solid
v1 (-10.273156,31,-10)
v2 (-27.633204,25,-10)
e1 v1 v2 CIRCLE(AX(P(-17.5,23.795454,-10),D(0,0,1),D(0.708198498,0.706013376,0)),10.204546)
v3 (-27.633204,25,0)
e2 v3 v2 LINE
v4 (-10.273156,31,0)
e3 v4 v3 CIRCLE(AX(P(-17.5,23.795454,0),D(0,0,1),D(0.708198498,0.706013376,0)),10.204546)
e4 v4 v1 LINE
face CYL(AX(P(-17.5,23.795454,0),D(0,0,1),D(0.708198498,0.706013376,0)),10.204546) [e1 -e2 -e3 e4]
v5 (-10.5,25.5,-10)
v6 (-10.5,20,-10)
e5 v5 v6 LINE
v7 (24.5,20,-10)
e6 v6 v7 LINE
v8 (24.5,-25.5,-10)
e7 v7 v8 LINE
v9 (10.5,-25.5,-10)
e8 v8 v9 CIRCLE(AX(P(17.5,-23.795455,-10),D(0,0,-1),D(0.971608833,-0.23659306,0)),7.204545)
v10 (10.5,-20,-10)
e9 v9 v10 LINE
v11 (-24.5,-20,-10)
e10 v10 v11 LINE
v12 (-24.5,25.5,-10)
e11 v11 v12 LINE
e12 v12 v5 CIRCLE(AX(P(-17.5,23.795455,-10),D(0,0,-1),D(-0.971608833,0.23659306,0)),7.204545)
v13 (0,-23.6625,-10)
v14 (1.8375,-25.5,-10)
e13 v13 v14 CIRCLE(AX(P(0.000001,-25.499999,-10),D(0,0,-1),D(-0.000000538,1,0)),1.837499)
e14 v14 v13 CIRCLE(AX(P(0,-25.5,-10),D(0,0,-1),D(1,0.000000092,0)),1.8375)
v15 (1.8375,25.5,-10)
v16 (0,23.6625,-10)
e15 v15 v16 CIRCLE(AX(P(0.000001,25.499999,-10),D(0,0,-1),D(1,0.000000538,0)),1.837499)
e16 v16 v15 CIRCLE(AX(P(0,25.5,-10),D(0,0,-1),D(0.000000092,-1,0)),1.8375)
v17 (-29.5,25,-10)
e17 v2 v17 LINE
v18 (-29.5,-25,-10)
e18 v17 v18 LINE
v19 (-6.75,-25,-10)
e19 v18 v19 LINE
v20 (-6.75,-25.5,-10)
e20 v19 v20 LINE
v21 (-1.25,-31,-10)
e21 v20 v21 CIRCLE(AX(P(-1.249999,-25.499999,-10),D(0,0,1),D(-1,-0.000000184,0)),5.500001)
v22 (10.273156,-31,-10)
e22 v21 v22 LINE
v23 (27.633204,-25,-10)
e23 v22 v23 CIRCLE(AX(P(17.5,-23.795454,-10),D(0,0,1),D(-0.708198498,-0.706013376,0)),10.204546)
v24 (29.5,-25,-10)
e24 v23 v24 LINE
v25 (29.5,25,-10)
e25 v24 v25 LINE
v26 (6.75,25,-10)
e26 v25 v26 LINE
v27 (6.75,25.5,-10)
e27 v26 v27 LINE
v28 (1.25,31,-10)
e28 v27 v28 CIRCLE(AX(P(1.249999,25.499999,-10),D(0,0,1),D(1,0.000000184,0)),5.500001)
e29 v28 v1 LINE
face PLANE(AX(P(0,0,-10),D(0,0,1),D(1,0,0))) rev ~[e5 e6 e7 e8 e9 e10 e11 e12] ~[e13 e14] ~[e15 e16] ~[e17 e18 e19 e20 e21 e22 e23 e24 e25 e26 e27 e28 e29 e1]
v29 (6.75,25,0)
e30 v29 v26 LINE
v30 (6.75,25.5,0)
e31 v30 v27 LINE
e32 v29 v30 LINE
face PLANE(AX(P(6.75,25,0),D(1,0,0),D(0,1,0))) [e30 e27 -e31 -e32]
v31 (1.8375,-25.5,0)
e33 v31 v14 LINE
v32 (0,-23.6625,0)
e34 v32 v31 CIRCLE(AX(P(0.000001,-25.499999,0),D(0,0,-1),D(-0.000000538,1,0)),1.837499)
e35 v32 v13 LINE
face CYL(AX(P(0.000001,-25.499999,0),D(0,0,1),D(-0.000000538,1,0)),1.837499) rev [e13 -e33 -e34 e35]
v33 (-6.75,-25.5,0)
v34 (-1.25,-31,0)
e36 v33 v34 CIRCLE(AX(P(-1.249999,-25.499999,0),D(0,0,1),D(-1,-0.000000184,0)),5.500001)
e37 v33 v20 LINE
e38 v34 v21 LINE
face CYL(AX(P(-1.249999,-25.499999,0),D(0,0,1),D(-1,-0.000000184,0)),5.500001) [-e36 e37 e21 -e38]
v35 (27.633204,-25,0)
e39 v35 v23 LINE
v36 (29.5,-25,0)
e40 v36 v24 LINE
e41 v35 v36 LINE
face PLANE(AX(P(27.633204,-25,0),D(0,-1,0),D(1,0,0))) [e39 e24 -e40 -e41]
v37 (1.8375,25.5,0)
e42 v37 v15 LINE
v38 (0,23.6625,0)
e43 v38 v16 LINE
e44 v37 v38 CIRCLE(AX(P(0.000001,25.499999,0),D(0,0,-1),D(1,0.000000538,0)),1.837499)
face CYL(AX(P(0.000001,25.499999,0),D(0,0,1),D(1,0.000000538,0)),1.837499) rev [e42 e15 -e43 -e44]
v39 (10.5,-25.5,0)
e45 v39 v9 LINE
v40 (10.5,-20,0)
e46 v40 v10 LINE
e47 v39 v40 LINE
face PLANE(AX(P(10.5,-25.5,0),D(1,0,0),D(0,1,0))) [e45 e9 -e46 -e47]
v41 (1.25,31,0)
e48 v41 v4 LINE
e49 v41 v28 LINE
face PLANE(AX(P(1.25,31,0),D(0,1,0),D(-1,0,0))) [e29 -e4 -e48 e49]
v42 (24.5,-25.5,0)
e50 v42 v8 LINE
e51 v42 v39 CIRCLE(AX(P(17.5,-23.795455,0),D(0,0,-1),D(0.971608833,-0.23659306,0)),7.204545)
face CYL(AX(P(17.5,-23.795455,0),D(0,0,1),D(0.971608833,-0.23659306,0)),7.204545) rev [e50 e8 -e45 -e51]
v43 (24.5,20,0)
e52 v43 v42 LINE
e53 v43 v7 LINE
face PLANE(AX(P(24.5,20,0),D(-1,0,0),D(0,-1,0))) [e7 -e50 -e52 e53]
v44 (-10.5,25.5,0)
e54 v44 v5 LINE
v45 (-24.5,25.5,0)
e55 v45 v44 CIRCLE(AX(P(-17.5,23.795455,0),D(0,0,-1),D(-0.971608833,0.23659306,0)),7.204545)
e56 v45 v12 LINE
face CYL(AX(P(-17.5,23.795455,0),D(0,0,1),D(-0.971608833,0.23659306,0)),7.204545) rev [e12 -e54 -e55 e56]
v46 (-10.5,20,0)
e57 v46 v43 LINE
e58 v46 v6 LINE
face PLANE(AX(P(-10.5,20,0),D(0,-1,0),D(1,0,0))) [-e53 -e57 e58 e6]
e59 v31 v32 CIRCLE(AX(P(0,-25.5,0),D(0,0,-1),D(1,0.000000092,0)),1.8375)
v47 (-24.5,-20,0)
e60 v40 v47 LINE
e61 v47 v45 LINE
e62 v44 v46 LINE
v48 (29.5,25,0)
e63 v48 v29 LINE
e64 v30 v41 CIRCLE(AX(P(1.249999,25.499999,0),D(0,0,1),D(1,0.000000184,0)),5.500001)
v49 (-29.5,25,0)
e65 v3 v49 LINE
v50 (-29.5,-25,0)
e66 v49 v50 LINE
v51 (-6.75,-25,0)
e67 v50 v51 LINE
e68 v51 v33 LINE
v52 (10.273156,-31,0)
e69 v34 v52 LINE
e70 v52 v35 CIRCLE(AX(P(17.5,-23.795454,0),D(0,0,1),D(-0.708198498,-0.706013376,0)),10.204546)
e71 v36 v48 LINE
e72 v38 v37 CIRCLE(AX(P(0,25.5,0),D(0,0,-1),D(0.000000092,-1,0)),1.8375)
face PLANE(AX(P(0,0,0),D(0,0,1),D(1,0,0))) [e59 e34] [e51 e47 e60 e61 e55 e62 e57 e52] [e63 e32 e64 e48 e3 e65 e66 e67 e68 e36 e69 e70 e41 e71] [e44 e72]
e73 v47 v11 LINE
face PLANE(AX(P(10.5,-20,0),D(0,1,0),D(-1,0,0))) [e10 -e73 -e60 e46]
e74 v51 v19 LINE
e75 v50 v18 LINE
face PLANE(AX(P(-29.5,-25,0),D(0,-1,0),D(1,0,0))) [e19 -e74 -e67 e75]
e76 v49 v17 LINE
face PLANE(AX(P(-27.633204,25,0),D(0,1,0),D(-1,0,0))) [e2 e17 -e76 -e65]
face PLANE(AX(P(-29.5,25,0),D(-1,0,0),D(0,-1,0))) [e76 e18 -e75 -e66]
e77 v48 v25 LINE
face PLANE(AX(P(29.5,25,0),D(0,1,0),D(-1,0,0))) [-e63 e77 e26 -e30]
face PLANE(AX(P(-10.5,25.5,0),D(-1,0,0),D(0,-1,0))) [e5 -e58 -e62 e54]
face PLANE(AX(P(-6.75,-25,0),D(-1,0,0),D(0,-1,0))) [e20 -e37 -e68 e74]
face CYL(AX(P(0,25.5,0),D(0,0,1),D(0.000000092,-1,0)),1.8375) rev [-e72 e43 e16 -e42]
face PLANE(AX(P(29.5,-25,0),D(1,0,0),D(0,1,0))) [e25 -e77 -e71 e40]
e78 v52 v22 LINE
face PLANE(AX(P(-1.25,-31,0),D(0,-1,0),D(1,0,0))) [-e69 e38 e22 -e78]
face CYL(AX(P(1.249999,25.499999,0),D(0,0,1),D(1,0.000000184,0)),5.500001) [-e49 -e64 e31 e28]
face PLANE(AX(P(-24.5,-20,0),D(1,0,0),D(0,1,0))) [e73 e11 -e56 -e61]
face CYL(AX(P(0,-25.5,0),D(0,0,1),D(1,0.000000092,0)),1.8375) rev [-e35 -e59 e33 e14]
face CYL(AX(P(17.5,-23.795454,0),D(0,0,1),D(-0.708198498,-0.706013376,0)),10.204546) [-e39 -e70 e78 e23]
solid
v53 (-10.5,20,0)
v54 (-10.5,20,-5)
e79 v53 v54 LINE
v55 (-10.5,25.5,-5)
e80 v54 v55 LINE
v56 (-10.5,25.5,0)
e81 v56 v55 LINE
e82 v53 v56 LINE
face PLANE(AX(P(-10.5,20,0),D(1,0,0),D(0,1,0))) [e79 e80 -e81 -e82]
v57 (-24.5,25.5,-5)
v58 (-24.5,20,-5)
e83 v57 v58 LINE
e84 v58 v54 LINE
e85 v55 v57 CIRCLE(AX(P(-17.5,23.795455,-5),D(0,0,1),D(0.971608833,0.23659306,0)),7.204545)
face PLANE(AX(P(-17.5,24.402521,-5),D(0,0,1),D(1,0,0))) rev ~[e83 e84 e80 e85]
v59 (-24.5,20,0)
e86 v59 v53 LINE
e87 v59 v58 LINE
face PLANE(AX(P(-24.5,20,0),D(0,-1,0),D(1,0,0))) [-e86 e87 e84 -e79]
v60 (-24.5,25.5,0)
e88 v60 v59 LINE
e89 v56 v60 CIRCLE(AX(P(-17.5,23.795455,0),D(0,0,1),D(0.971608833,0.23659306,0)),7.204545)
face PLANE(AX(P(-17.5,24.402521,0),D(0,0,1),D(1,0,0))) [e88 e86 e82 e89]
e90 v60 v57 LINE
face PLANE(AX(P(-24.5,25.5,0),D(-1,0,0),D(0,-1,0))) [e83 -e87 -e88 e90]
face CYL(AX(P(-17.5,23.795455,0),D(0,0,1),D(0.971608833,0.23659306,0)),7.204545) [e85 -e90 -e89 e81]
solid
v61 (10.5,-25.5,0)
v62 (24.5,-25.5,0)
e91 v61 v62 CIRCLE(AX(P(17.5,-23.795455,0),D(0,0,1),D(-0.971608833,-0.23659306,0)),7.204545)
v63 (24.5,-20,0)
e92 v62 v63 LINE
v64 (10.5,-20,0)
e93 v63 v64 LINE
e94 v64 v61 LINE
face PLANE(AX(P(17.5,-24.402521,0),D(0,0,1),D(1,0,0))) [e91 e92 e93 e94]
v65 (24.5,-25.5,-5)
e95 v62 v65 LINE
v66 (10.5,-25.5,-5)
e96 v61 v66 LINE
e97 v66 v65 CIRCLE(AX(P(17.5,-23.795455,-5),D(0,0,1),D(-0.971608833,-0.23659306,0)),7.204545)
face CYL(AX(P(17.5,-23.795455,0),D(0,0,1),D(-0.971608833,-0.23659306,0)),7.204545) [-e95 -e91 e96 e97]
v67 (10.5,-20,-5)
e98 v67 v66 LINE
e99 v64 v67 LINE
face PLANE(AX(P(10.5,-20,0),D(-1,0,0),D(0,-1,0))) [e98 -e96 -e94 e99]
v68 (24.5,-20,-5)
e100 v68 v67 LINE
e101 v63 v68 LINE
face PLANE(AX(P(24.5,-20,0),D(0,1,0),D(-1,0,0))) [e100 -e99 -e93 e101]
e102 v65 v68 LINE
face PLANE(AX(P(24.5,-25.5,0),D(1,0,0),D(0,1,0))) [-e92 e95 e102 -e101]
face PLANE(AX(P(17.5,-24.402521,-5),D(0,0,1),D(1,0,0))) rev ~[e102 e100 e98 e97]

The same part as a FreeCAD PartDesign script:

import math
import FreeCAD as App
import Part
import Sketcher

doc = App.newDocument("Part")
body = doc.addObject("PartDesign::Body", "Body")

sketch1 = body.newObject("Sketcher::SketchObject", "Sketch")
sketch1.AttachmentSupport = (doc.getObject("XY_Plane"), [""])
sketch1.MapMode = "FlatFace"
sketch1.addGeometry([
    Part.LineSegment(App.Vector(29.5, 25, 0), App.Vector(6.75, 25, 0)),
    Part.LineSegment(App.Vector(6.75, 25, 0), App.Vector(6.75, 25.5, 0)),
    Part.ArcOfCircle(Part.Circle(App.Vector(1.249999, 25.499999, 0), App.Vector(0, 0, 1), 5.500001), math.radians(0.000011), math.radians(89.999989)),
    Part.LineSegment(App.Vector(1.25, 31, 0), App.Vector(-10.273156, 31, 0)),
    Part.ArcOfCircle(Part.Circle(App.Vector(-17.5, 23.795454, 0), App.Vector(0, 0, 1), 10.204546), math.radians(44.911471), math.radians(173.220994)),
    Part.LineSegment(App.Vector(-27.633204, 25, 0), App.Vector(-29.5, 25, 0)),
    Part.LineSegment(App.Vector(-29.5, 25, 0), App.Vector(-29.5, -25, 0)),
    Part.LineSegment(App.Vector(-29.5, -25, 0), App.Vector(-6.75, -25, 0)),
    Part.LineSegment(App.Vector(-6.75, -25, 0), App.Vector(-6.75, -25.5, 0)),
    Part.ArcOfCircle(Part.Circle(App.Vector(-1.249999, -25.499999, 0), App.Vector(0, 0, 1), 5.500001), math.radians(-179.999989), math.radians(-90.000011)),
    Part.LineSegment(App.Vector(-1.25, -31, 0), App.Vector(10.273156, -31, 0)),
    Part.ArcOfCircle(Part.Circle(App.Vector(17.5, -23.795454, 0), App.Vector(0, 0, 1), 10.204546), math.radians(-135.088529), math.radians(-6.779006)),
    Part.LineSegment(App.Vector(27.633204, -25, 0), App.Vector(29.5, -25, 0)),
    Part.LineSegment(App.Vector(29.5, -25, 0), App.Vector(29.5, 25, 0)),
    Part.ArcOfCircle(Part.Circle(App.Vector(0.000001, -25.499999, 0), App.Vector(0, 0, 1), 1.837499), math.radians(-0.000031), math.radians(90.000031)),
    Part.ArcOfCircle(Part.Circle(App.Vector(0, -25.5, 0), App.Vector(0, 0, 1), 1.8375), math.radians(89.999995), math.radians(360.000005)),
    Part.ArcOfCircle(Part.Circle(App.Vector(-17.5, 23.795455, 0), App.Vector(0, 0, 1), 7.204545), math.radians(13.685547), math.radians(166.314453)),
    Part.LineSegment(App.Vector(-10.5, 25.5, 0), App.Vector(-10.5, 20, 0)),
    Part.LineSegment(App.Vector(-10.5, 20, 0), App.Vector(24.5, 20, 0)),
    Part.LineSegment(App.Vector(24.5, 20, 0), App.Vector(24.5, -25.5, 0)),
    Part.ArcOfCircle(Part.Circle(App.Vector(17.5, -23.795455, 0), App.Vector(0, 0, 1), 7.204545), math.radians(-166.314453), math.radians(-13.685547)),
    Part.LineSegment(App.Vector(10.5, -25.5, 0), App.Vector(10.5, -20, 0)),
    Part.LineSegment(App.Vector(10.5, -20, 0), App.Vector(-24.5, -20, 0)),
    Part.LineSegment(App.Vector(-24.5, -20, 0), App.Vector(-24.5, 25.5, 0)),
    Part.ArcOfCircle(Part.Circle(App.Vector(0, 25.5, 0), App.Vector(0, 0, 1), 1.8375), math.radians(-0.000005), math.radians(270.000005)),
    Part.ArcOfCircle(Part.Circle(App.Vector(0.000001, 25.499999, 0), App.Vector(0, 0, 1), 1.837499), math.radians(-90.000031), math.radians(0.000031)),
], False)
sketch1.addConstraint([
    Sketcher.Constraint("Coincident", 0, 2, 1, 1),
    Sketcher.Constraint("Tangent", 1, 2, 2, 1),
    Sketcher.Constraint("Tangent", 2, 2, 3, 1),
    Sketcher.Constraint("Coincident", 3, 2, 4, 1),
    Sketcher.Constraint("Coincident", 4, 2, 5, 1),
    Sketcher.Constraint("Coincident", 5, 2, 6, 1),
    Sketcher.Constraint("Coincident", 6, 2, 7, 1),
    Sketcher.Constraint("Coincident", 7, 2, 8, 1),
    Sketcher.Constraint("Tangent", 8, 2, 9, 1),
    Sketcher.Constraint("Tangent", 9, 2, 10, 1),
    Sketcher.Constraint("Coincident", 10, 2, 11, 1),
    Sketcher.Constraint("Coincident", 11, 2, 12, 1),
    Sketcher.Constraint("Coincident", 12, 2, 13, 1),
    Sketcher.Constraint("Coincident", 13, 2, 0, 1),
    Sketcher.Constraint("Tangent", 14, 1, 15, 2),
    Sketcher.Constraint("Coincident", 15, 1, 14, 2),
    Sketcher.Constraint("Coincident", 16, 1, 17, 1),
    Sketcher.Constraint("Coincident", 17, 2, 18, 1),
    Sketcher.Constraint("Coincident", 18, 2, 19, 1),
    Sketcher.Constraint("Coincident", 19, 2, 20, 2),
    Sketcher.Constraint("Coincident", 20, 1, 21, 1),
    Sketcher.Constraint("Coincident", 21, 2, 22, 1),
    Sketcher.Constraint("Coincident", 22, 2, 23, 1),
    Sketcher.Constraint("Coincident", 23, 2, 16, 2),
    Sketcher.Constraint("Tangent", 24, 1, 25, 2),
    Sketcher.Constraint("Coincident", 25, 1, 24, 2),
    Sketcher.Constraint("Horizontal", 0),
    Sketcher.Constraint("Vertical", 1),
    Sketcher.Constraint("Horizontal", 3),
    Sketcher.Constraint("Horizontal", 5),
    Sketcher.Constraint("Vertical", 6),
    Sketcher.Constraint("Horizontal", 7),
    Sketcher.Constraint("Vertical", 8),
    Sketcher.Constraint("Horizontal", 10),
    Sketcher.Constraint("Horizontal", 12),
    Sketcher.Constraint("Vertical", 13),
    Sketcher.Constraint("Vertical", 17),
    Sketcher.Constraint("Horizontal", 18),
    Sketcher.Constraint("Vertical", 19),
    Sketcher.Constraint("Vertical", 21),
    Sketcher.Constraint("Horizontal", 22),
    Sketcher.Constraint("Vertical", 23),
    Sketcher.Constraint("Coincident", 16, 3, 4, 3),
    Sketcher.Constraint("Coincident", 20, 3, 11, 3),
    Sketcher.Constraint("Equal", 2, 9),
    Sketcher.Constraint("Equal", 4, 11),
    Sketcher.Constraint("Equal", 16, 20),
    Sketcher.Constraint("Equal", 15, 24),
    Sketcher.Constraint("Symmetric", 2, 3, 9, 3, -1, 1),
    Sketcher.Constraint("Symmetric", 4, 3, 11, 3, -1, 1),
    Sketcher.Constraint("Symmetric", 14, 3, 24, 3, -1, 1),
    Sketcher.Constraint("Symmetric", 5, 2, 12, 2, -1, 1),
    Sketcher.Constraint("Symmetric", 17, 2, 21, 2, -1, 1),
    Sketcher.Constraint("Symmetric", 14, 1, 24, 1, -1),
    Sketcher.Constraint("PointOnObject", 15, 1, -2),
    Sketcher.Constraint("PointOnObject", 25, 1, -2),
    Sketcher.Constraint("Horizontal", 9, 3, 14, 3),
    Sketcher.Constraint("Horizontal", 0, 2, 4, 2),
    Sketcher.Constraint("Horizontal", 7, 2, 11, 2),
    Sketcher.Constraint("Horizontal", 8, 2, 14, 1),
    Sketcher.Constraint("Horizontal", 1, 2, 16, 1),
    Sketcher.Constraint("Horizontal", 14, 1, 19, 2),
    Sketcher.Constraint("Horizontal", 16, 1, 23, 2),
    Sketcher.Constraint("Radius", 2, 5.500001),
    Sketcher.Constraint("DistanceX", 18, 1, 18, 2, 35.0),
    Sketcher.Constraint("DistanceY", 6, 2, 6, 1, 50.0),
    Sketcher.Constraint("DistanceY", 1, 1, 1, 2, 0.5),
    Sketcher.Constraint("DistanceY", 17, 2, 17, 1, 5.5),
    Sketcher.Constraint("DistanceX", 5, 2, 16, 3, 12.0),
    Sketcher.Constraint("DistanceX", 16, 3, 16, 1, 7.0),
    Sketcher.Constraint("DistanceX", 0, 2, 0, 1, 22.75),
    Sketcher.Constraint("Radius", 14, 1.837499),
    Sketcher.Constraint("Radius", 4, 10.204546),
    Sketcher.Constraint("Radius", 16, 7.204545),
])
pad1 = body.newObject("PartDesign::Pad", "Pad")
pad1.Profile = sketch1
pad1.Length = 10
pad1.Reversed = True
body2 = doc.addObject("PartDesign::Body", "Body001")
body2.AllowCompound = True

sketch2 = body2.newObject("Sketcher::SketchObject", "Sketch001")
sketch2.AttachmentSupport = (doc.getObject("XY_Plane001"), [""])
sketch2.MapMode = "FlatFace"
sketch2.addGeometry([
    Part.LineSegment(App.Vector(-24.5, 20, 0), App.Vector(-10.5, 20, 0)),
    Part.LineSegment(App.Vector(-10.5, 20, 0), App.Vector(-10.5, 25.5, 0)),
    Part.ArcOfCircle(Part.Circle(App.Vector(-17.5, 23.795455, 0), App.Vector(0, 0, 1), 7.204545), math.radians(13.685547), math.radians(166.314453)),
    Part.LineSegment(App.Vector(-24.5, 25.5, 0), App.Vector(-24.5, 20, 0)),
    Part.LineSegment(App.Vector(24.5, -25.5, 0), App.Vector(24.5, -20, 0)),
    Part.LineSegment(App.Vector(24.5, -20, 0), App.Vector(10.5, -20, 0)),
    Part.LineSegment(App.Vector(10.5, -20, 0), App.Vector(10.5, -25.5, 0)),
    Part.ArcOfCircle(Part.Circle(App.Vector(17.5, -23.795455, 0), App.Vector(0, 0, 1), 7.204545), math.radians(-166.314453), math.radians(-13.685547)),
], False)
sketch2.addConstraint([
    Sketcher.Constraint("Coincident", 0, 2, 1, 1),
    Sketcher.Constraint("Coincident", 1, 2, 2, 1),
    Sketcher.Constraint("Coincident", 2, 2, 3, 1),
    Sketcher.Constraint("Coincident", 3, 2, 0, 1),
    Sketcher.Constraint("Coincident", 4, 2, 5, 1),
    Sketcher.Constraint("Coincident", 5, 2, 6, 1),
    Sketcher.Constraint("Coincident", 6, 2, 7, 1),
    Sketcher.Constraint("Coincident", 7, 2, 4, 1),
    Sketcher.Constraint("Horizontal", 0),
    Sketcher.Constraint("Vertical", 1),
    Sketcher.Constraint("Vertical", 3),
    Sketcher.Constraint("Vertical", 4),
    Sketcher.Constraint("Horizontal", 5),
    Sketcher.Constraint("Vertical", 6),
    Sketcher.Constraint("Equal", 2, 7),
    Sketcher.Constraint("Symmetric", 2, 3, 7, 3, -1, 1),
    Sketcher.Constraint("Symmetric", 3, 2, 4, 2, -1, 1),
    Sketcher.Constraint("Horizontal", 1, 2, 2, 2),
    Sketcher.Constraint("Horizontal", 6, 2, 7, 2),
    Sketcher.Constraint("DistanceX", 0, 1, 0, 2, 14.0),
    Sketcher.Constraint("DistanceY", 1, 1, 1, 2, 5.5),
    Sketcher.Constraint("DistanceY", -1, 1, 0, 2, 20.0),
    Sketcher.Constraint("DistanceX", 2, 3, 7, 3, 35.0),
    Sketcher.Constraint("Radius", 2, 7.204545),
])
pad2 = body2.newObject("PartDesign::Pad", "Pad001")
pad2.Profile = sketch2
pad2.Length = 5
pad2.Reversed = True

doc.recompute()
